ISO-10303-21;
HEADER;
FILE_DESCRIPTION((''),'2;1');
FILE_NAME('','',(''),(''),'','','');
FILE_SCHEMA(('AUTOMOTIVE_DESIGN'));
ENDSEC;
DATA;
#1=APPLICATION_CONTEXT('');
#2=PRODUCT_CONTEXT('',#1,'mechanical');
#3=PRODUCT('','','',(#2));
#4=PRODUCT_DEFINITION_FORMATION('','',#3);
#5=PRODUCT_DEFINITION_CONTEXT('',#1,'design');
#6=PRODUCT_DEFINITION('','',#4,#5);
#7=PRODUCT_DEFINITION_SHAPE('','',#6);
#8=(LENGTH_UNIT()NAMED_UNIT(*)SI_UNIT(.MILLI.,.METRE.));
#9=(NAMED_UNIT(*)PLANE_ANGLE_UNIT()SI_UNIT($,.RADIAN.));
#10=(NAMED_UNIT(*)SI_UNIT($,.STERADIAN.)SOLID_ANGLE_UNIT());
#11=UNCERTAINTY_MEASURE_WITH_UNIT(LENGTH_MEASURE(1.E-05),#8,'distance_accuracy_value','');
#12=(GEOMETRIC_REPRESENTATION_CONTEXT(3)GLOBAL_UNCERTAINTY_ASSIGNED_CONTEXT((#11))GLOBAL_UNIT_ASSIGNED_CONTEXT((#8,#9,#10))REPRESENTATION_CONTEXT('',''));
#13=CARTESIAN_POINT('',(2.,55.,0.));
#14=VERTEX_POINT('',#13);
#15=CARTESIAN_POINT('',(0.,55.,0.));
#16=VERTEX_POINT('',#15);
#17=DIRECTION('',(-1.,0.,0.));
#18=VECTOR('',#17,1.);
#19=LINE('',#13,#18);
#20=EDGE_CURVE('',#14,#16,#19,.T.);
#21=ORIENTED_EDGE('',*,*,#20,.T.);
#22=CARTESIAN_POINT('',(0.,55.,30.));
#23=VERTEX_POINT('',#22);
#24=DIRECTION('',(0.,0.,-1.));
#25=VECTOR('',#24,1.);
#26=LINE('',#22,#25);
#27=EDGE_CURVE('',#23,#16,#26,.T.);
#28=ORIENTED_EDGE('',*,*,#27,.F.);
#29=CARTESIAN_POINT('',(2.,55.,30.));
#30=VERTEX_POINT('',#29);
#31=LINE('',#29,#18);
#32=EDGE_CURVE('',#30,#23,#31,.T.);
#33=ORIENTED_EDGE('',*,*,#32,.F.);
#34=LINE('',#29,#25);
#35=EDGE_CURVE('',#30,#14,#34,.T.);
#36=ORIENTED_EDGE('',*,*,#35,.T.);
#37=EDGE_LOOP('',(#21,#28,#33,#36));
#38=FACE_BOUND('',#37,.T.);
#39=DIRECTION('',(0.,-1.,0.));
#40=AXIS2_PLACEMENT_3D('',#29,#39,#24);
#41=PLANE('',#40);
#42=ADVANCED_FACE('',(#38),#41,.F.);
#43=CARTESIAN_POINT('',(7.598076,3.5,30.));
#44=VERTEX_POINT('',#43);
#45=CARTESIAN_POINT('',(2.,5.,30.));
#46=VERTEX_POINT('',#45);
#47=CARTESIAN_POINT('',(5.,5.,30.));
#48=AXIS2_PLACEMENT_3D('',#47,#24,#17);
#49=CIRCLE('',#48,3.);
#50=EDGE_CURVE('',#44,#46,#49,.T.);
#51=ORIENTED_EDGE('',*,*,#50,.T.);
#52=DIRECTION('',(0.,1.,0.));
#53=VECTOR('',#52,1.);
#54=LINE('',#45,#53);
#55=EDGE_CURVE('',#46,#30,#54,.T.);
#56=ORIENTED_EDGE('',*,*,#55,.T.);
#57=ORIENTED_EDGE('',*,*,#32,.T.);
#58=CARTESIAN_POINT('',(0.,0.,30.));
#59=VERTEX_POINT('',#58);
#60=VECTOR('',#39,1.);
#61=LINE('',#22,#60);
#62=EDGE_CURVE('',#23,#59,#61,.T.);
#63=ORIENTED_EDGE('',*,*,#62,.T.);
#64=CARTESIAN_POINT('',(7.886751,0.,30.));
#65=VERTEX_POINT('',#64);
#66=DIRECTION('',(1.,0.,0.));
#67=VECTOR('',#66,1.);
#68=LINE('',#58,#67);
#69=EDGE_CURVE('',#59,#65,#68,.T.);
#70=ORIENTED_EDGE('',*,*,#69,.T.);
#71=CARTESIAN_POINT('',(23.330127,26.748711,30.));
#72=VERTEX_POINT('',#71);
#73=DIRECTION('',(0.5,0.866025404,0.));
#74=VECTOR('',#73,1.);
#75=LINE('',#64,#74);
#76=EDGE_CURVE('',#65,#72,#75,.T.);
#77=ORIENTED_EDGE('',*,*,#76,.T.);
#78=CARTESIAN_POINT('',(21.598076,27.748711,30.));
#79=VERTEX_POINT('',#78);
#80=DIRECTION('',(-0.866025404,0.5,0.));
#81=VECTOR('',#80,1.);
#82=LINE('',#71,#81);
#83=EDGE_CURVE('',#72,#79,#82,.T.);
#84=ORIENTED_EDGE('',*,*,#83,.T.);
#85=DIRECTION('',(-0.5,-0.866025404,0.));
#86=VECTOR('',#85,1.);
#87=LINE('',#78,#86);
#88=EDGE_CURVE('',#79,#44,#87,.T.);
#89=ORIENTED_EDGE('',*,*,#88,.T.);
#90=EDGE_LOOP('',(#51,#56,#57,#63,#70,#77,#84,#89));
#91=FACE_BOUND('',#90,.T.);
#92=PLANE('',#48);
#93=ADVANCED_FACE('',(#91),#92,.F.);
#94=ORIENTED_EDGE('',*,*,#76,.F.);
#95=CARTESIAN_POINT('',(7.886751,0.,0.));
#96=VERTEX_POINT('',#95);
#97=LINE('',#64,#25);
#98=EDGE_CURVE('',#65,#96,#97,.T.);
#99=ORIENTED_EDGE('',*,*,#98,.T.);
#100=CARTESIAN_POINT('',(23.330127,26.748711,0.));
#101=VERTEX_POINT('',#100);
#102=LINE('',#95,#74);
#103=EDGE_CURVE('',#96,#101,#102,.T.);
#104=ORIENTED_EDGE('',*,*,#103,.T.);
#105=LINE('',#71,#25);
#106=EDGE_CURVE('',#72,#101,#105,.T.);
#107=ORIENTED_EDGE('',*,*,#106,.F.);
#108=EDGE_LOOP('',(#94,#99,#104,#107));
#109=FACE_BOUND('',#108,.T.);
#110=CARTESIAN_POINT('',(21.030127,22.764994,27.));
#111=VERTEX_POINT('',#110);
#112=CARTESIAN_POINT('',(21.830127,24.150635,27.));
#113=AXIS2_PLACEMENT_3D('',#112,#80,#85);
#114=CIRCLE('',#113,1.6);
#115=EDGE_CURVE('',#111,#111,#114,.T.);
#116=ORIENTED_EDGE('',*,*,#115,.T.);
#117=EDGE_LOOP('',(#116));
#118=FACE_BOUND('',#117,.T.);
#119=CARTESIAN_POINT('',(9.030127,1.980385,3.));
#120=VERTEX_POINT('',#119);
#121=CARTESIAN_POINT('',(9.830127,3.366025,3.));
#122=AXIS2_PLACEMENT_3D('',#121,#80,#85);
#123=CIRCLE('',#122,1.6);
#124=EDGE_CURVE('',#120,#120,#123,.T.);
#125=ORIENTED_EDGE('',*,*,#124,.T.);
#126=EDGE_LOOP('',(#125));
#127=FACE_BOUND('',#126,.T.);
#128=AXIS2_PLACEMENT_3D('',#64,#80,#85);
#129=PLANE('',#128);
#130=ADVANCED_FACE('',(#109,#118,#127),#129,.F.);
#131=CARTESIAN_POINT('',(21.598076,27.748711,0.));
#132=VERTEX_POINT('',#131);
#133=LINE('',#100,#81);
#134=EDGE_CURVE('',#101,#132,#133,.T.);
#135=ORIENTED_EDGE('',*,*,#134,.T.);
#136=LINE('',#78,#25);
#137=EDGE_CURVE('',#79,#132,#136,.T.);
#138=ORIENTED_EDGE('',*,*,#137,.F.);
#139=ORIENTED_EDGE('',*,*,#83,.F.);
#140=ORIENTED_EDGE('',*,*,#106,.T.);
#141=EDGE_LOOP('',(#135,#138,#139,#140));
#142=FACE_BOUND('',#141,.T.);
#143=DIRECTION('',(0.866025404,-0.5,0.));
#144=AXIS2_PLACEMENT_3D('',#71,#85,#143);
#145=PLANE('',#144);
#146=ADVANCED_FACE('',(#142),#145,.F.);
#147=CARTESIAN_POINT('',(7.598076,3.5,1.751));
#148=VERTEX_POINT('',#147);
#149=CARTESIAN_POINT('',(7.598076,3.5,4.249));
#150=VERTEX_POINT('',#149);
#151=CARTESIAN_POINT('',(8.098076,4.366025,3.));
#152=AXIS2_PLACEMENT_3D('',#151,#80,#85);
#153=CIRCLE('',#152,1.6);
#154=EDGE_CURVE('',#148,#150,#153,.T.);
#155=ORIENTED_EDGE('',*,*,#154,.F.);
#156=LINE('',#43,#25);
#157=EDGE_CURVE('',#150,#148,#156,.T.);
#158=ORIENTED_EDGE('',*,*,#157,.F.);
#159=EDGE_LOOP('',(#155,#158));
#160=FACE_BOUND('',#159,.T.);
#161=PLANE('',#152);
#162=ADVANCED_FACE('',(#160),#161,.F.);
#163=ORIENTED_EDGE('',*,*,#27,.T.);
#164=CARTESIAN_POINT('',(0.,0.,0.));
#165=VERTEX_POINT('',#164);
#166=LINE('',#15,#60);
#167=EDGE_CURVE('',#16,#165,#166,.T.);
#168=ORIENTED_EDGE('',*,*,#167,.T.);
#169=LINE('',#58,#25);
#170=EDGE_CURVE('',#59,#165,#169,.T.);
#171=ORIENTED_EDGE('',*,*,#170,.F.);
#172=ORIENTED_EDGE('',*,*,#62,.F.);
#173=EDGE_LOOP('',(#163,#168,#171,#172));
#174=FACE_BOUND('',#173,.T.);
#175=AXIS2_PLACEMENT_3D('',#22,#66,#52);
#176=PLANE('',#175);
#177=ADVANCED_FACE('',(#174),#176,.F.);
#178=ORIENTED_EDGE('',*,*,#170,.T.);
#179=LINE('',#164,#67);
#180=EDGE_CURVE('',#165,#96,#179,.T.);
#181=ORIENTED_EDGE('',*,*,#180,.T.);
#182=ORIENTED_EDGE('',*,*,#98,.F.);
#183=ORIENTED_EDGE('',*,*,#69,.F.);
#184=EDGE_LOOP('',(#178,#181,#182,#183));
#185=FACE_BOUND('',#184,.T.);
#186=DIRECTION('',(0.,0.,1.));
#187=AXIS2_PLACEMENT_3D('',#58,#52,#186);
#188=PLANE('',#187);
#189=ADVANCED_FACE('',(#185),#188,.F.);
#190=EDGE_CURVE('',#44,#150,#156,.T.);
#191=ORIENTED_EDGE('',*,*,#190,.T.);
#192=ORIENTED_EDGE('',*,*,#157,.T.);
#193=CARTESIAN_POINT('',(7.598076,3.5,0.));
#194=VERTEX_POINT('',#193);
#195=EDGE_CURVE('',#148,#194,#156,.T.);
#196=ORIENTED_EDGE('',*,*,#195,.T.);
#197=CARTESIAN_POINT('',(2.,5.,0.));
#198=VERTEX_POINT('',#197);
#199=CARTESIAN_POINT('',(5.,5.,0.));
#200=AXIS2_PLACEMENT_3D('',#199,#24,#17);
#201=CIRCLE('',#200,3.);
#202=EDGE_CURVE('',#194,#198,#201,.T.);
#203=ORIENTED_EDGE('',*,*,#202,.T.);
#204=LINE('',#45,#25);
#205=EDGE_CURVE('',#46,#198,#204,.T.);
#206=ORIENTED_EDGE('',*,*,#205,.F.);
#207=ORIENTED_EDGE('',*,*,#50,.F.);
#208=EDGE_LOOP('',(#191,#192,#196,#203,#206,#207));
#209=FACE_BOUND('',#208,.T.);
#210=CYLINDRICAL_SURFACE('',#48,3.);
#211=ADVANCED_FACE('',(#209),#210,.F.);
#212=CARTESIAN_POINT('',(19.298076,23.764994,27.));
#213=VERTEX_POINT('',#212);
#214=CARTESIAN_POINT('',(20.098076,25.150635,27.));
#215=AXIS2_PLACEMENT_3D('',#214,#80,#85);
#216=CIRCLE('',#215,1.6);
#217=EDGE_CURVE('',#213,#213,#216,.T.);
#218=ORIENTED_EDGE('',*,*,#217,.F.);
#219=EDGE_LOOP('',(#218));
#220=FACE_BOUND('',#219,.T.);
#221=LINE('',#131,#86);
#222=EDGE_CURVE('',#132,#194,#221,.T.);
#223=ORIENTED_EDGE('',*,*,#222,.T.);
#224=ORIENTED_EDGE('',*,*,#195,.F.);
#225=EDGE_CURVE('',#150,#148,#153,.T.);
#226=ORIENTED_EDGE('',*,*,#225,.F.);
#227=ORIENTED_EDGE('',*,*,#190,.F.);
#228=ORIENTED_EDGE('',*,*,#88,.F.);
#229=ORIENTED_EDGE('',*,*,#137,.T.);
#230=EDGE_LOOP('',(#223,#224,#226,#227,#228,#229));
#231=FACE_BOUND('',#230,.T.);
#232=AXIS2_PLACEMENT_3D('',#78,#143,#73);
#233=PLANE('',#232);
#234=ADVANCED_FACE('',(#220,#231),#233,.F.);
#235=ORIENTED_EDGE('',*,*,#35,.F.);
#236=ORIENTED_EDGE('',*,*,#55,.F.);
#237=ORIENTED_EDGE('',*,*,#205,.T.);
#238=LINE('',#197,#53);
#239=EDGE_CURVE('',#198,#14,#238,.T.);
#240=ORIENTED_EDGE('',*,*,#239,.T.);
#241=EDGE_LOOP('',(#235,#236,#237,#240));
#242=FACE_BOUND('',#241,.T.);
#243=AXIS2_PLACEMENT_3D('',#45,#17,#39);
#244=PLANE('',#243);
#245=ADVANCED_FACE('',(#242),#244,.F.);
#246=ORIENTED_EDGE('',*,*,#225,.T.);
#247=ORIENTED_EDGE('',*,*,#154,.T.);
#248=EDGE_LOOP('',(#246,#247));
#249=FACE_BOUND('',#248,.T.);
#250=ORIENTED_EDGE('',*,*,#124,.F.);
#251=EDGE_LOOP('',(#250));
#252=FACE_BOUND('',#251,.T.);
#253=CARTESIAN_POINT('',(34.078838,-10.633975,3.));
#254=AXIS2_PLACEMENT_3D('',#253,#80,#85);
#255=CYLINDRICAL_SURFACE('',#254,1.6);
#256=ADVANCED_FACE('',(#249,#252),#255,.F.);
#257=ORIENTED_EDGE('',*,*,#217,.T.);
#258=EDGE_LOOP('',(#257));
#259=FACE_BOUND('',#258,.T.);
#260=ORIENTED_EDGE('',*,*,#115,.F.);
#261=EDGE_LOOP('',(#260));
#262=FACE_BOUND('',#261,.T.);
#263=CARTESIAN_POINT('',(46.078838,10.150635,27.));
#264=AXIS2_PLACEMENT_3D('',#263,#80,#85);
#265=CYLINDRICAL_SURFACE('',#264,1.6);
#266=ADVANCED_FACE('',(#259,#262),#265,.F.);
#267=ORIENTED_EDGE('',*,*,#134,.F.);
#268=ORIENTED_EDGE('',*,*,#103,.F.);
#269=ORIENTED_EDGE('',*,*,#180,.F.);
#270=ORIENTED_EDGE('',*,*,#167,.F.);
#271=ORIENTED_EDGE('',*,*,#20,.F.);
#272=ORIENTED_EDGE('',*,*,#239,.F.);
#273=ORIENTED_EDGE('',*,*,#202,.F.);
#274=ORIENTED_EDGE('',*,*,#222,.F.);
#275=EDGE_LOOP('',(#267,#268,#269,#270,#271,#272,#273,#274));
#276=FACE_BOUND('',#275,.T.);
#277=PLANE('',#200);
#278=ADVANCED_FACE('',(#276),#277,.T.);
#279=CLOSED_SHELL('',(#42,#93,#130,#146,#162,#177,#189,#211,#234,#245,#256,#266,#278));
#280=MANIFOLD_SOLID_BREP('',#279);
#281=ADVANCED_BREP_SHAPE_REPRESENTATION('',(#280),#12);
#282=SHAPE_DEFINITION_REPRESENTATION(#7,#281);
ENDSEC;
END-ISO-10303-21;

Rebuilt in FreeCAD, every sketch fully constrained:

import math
import FreeCAD as App
import Part
import Sketcher

V = App.Vector
Q = App.Units.Quantity

doc = App.newDocument("Part")
params = doc.addObject("Spreadsheet::Sheet", "Params")
for row, (alias, value) in enumerate([
    ("sketch1_radius", "3 mm"),
    ("sketch1_width", "2 mm"),
    ("sketch1_height", "55 mm"),
    ("sketch1_height2", "50 mm"),
    ("sketch1_length", "2 mm"),
    ("pad1_length", "30 mm"),
    ("sketch2_diameter", "3.2 mm"),
    ("pocket1_length", "30 mm"),
], start=1):
    params.set(f"A{row}", alias)
    params.set(f"B{row}", "=" + value)
    params.setAlias(f"B{row}", alias)

body = doc.addObject("PartDesign::Body", "Body")

sketch1 = body.newObject("Sketcher::SketchObject", "Sketch")
sketch1.AttachmentSupport = (doc.getObject("XY_Plane"), [""])
sketch1.MapMode = "FlatFace"
sketch1.addGeometry([
    Part.LineSegment(V(0, 55, 0), V(0, 0, 0)),
    Part.LineSegment(V(0, 0, 0), V(7.9, 0, 0)),
    Part.LineSegment(V(7.9, 0, 0), V(23.3, 26.7, 0)),
    Part.LineSegment(V(23.3, 26.7, 0), V(21.6, 27.7, 0)),
    Part.LineSegment(V(21.6, 27.7, 0), V(7.6, 3.5, 0)),
    Part.ArcOfCircle(Part.Circle(V(5, 5, 0), V(0, 0, 1), 3), math.radians(180), math.radians(330)),
    Part.LineSegment(V(2, 5, 0), V(2, 55, 0)),
    Part.LineSegment(V(2, 55, 0), V(0, 55, 0)),
], False)
sketch1.addConstraint([
    Sketcher.Constraint("Coincident", 0, 2, 1, 1),
    Sketcher.Constraint("Coincident", 1, 2, 2, 1),
    Sketcher.Constraint("Coincident", 2, 2, 3, 1),
    Sketcher.Constraint("Coincident", 3, 2, 4, 1),
    Sketcher.Constraint("Tangent", 4, 2, 5, 2),
    Sketcher.Constraint("Tangent", 5, 1, 6, 1),
    Sketcher.Constraint("Coincident", 6, 2, 7, 1),
    Sketcher.Constraint("Coincident", 7, 2, 0, 1),
    Sketcher.Constraint("Vertical", 0),
    Sketcher.Constraint("Horizontal", 1),
    Sketcher.Constraint("Vertical", 6),
    Sketcher.Constraint("Horizontal", 7),
    Sketcher.Constraint("Coincident", 0, 2, -1, 1),
    Sketcher.Constraint("Perpendicular", 2, 3),
    Sketcher.Constraint("Perpendicular", 3, 4),
    Sketcher.Constraint("Radius", 5, 3.0),
    Sketcher.Constraint("DistanceX", 7, 2, 7, 1, 2.0),
    Sketcher.Constraint("DistanceY", 0, 2, 0, 1, 55.0),
    Sketcher.Constraint("DistanceY", 6, 1, 6, 2, 50.0),
    Sketcher.Constraint("Angle", 2, Q("60 deg")),
    Sketcher.Constraint("Distance", 3, 2.0),
    Sketcher.Constraint("Distance", 4, 28.0),
])
sketch1.setExpression("Constraints[15]", "Params.sketch1_radius")
sketch1.setExpression("Constraints[16]", "Params.sketch1_width")
sketch1.setExpression("Constraints[17]", "Params.sketch1_height")
sketch1.setExpression("Constraints[18]", "Params.sketch1_height2")
sketch1.setExpression("Constraints[20]", "Params.sketch1_length")
pad1 = body.newObject("PartDesign::Pad", "Pad")
pad1.Profile = sketch1
pad1.setExpression("Length", "Params.pad1_length")

sketch2 = body.newObject("Sketcher::SketchObject", "Sketch001")
sketch2.Placement = App.Placement(V(4.183013, -2.415064, 0), App.Rotation(V(0.5, 0.866025404, 0), V(0, 0, -1), V(-0.866025404, 0.5, 0), "ZXY"))
sketch2.addGeometry([
    Part.Circle(V(31.8, -27, 0), V(0, 0, 1), 1.6),
    Part.Circle(V(7.8, -3, 0), V(0, 0, 1), 1.6),
], False)
sketch2.addConstraint([
    Sketcher.Constraint("Equal", 0, 1),
    Sketcher.Constraint("Diameter", 0, 3.2),
    Sketcher.Constraint("DistanceY", 0, 3, -1, 1, 27.0),
    Sketcher.Constraint("DistanceY", 1, 3, -1, 1, 3.0),
    Sketcher.Constraint("DistanceX", 1, 3, 0, 3, 24.0),
    Sketcher.Constraint("DistanceX", -1, 1, 0, 3, 31.830127),
])
sketch2.setExpression("Constraints[1]", "Params.sketch2_diameter")
pocket1 = body.newObject("PartDesign::Pocket", "Pocket")
pocket1.Profile = sketch2
pocket1.setExpression("Length", "Params.pocket1_length")

doc.recompute()
